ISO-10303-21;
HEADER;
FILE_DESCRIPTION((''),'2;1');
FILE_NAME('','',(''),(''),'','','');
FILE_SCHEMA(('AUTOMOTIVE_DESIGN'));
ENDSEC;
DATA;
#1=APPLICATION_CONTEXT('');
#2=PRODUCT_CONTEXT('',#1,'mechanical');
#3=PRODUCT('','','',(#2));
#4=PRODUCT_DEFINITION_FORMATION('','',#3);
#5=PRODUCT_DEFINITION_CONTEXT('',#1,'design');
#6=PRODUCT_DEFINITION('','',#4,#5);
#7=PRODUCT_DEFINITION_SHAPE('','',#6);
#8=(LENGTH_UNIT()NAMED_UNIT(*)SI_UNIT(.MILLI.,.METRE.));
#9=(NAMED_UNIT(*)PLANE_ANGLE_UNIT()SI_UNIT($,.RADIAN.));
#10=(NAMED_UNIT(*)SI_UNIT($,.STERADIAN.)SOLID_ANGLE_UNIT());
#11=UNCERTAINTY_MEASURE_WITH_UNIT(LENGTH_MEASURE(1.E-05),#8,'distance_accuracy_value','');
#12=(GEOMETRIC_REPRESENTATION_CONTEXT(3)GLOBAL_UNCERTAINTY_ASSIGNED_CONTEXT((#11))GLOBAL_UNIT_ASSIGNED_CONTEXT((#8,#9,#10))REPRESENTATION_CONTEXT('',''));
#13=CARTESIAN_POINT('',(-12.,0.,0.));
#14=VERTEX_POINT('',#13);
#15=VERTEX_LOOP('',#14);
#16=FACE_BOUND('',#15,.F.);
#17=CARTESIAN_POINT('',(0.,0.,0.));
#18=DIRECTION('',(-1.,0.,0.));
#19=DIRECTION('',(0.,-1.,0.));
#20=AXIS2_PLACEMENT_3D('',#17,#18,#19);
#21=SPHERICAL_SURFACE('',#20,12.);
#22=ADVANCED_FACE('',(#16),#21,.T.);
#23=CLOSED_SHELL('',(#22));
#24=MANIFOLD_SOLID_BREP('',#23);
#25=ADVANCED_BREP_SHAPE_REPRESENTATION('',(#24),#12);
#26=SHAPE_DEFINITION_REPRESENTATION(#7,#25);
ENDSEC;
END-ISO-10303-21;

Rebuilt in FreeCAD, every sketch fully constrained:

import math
import FreeCAD as App
import Part
import Sketcher

V = App.Vector
Q = App.Units.Quantity

doc = App.newDocument("Part")
params = doc.addObject("Spreadsheet::Sheet", "Params")
for row, (alias, value) in enumerate([
    ("sketch1_radius", "12 mm"),
    ("revolution_angle", "360 deg"),
], start=1):
    params.set(f"A{row}", alias)
    params.set(f"B{row}", "=" + value)
    params.setAlias(f"B{row}", alias)

body = doc.addObject("PartDesign::Body", "Body")

# Sketch on XY plane
sketch1 = body.newObject("Sketcher::SketchObject", "Sketch")
sketch1.AttachmentSupport = (doc.getObject("XY_Plane"), [""])
sketch1.MapMode = "FlatFace"
sketch1.addGeometry(Part.LineSegment(V(12, 0, 0), V(-12, 0, 0)), False)
sketch1.addGeometry(Part.ArcOfCircle(Part.Circle(V(0, 0, 0), V(0, 0, 1), 12), math.radians(180), math.radians(360)), False)
sketch1.addConstraint(Sketcher.Constraint("Coincident", 0, 1, 1, 2))
sketch1.addConstraint(Sketcher.Constraint("Coincident", 1, 1, 0, 2))
sketch1.addConstraint(Sketcher.Constraint("Horizontal", 0))
sketch1.addConstraint(Sketcher.Constraint("Coincident", 1, 3, -1, 1))
sketch1.addConstraint(Sketcher.Constraint("PointOnObject", 0, 1, -1))
sketch1.addConstraint(Sketcher.Constraint("Radius", 1, Q("12 mm")))
sketch1.setExpression("Constraints[5]", "Params.sketch1_radius")
revolution = body.newObject("PartDesign::Revolution", "Revolution")
revolution.Profile = sketch1
revolution.ReferenceAxis = (sketch1, ["H_Axis"])
revolution.setExpression("Angle", "Params.revolution_angle")

doc.recompute()
